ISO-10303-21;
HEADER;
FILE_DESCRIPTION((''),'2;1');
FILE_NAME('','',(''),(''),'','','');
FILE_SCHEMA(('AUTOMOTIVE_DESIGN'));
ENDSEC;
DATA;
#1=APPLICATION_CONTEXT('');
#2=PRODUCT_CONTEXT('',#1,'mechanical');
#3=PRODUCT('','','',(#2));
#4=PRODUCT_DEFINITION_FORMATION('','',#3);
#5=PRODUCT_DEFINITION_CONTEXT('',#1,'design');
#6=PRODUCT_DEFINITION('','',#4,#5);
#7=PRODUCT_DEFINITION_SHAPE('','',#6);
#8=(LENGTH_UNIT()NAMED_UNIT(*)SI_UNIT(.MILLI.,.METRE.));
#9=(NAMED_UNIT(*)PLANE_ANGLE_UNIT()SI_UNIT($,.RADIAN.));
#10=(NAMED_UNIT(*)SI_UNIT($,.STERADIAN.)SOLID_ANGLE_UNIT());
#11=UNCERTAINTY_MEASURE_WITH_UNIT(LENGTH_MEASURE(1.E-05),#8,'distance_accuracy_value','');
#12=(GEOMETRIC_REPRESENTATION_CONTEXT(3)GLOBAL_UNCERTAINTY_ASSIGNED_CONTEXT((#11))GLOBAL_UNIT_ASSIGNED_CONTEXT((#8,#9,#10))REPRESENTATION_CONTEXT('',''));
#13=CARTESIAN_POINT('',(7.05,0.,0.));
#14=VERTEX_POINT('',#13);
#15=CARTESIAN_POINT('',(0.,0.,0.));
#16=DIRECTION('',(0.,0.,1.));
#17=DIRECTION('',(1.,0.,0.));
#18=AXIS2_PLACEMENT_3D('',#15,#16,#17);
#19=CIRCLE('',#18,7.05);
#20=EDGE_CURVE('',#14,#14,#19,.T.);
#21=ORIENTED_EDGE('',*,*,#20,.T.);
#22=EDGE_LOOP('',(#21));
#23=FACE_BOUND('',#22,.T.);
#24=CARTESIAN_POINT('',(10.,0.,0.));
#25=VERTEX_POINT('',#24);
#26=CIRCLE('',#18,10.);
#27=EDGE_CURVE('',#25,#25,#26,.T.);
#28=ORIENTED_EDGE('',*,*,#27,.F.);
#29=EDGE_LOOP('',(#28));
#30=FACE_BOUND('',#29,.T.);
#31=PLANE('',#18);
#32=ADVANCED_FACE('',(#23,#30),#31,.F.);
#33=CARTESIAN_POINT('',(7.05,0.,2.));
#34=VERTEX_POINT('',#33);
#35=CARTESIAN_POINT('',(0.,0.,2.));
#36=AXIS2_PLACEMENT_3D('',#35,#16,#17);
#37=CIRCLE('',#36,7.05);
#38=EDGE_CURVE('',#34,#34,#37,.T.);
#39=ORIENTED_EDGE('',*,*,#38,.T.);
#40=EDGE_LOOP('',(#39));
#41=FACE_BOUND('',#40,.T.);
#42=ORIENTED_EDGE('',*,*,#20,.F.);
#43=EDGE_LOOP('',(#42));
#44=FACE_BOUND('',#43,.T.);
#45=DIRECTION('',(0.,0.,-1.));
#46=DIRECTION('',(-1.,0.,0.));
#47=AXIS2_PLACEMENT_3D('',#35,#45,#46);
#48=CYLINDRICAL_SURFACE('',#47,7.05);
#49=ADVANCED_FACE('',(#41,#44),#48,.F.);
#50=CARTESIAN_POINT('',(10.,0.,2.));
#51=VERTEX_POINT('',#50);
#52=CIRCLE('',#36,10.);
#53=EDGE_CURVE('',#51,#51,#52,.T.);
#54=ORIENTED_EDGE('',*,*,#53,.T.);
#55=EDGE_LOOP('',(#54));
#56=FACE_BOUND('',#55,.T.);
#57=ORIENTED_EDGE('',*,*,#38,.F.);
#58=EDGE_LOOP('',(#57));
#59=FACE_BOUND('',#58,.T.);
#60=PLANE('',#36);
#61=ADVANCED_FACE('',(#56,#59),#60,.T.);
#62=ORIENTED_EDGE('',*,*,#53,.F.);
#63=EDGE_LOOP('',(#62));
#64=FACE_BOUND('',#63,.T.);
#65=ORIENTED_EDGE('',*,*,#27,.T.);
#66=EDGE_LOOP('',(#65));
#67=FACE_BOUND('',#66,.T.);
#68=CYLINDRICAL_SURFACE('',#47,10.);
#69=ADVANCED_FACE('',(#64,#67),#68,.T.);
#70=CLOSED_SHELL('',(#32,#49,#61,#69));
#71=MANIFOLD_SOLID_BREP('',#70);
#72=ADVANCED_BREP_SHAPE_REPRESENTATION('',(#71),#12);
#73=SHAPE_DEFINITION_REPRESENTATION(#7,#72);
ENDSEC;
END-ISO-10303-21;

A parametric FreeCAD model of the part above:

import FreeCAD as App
import Part
import Sketcher

doc = App.newDocument("Part")
body = doc.addObject("PartDesign::Body", "Body")

# Sketch on XY plane
sketch1 = body.newObject("Sketcher::SketchObject", "Sketch")
sketch1.AttachmentSupport = (doc.getObject("XY_Plane"), [""])
sketch1.MapMode = "FlatFace"
sketch1.addGeometry(Part.Circle(App.Vector(0, 0, 0), App.Vector(0, 0, 1), 10), False)
sketch1.addGeometry(Part.Circle(App.Vector(0, 0, 0), App.Vector(0, 0, 1), 7), False)
sketch1.addConstraint(Sketcher.Constraint("Coincident", 0, 3, -1, 1))
sketch1.addConstraint(Sketcher.Constraint("Coincident", 1, 3, -1, 1))
sketch1.addConstraint(Sketcher.Constraint("Diameter", 0, 20.0))
sketch1.addConstraint(Sketcher.Constraint("Diameter", 1, 14.1))
pad1 = body.newObject("PartDesign::Pad", "Pad")
pad1.Profile = sketch1
pad1.Length = 2

doc.recompute()
